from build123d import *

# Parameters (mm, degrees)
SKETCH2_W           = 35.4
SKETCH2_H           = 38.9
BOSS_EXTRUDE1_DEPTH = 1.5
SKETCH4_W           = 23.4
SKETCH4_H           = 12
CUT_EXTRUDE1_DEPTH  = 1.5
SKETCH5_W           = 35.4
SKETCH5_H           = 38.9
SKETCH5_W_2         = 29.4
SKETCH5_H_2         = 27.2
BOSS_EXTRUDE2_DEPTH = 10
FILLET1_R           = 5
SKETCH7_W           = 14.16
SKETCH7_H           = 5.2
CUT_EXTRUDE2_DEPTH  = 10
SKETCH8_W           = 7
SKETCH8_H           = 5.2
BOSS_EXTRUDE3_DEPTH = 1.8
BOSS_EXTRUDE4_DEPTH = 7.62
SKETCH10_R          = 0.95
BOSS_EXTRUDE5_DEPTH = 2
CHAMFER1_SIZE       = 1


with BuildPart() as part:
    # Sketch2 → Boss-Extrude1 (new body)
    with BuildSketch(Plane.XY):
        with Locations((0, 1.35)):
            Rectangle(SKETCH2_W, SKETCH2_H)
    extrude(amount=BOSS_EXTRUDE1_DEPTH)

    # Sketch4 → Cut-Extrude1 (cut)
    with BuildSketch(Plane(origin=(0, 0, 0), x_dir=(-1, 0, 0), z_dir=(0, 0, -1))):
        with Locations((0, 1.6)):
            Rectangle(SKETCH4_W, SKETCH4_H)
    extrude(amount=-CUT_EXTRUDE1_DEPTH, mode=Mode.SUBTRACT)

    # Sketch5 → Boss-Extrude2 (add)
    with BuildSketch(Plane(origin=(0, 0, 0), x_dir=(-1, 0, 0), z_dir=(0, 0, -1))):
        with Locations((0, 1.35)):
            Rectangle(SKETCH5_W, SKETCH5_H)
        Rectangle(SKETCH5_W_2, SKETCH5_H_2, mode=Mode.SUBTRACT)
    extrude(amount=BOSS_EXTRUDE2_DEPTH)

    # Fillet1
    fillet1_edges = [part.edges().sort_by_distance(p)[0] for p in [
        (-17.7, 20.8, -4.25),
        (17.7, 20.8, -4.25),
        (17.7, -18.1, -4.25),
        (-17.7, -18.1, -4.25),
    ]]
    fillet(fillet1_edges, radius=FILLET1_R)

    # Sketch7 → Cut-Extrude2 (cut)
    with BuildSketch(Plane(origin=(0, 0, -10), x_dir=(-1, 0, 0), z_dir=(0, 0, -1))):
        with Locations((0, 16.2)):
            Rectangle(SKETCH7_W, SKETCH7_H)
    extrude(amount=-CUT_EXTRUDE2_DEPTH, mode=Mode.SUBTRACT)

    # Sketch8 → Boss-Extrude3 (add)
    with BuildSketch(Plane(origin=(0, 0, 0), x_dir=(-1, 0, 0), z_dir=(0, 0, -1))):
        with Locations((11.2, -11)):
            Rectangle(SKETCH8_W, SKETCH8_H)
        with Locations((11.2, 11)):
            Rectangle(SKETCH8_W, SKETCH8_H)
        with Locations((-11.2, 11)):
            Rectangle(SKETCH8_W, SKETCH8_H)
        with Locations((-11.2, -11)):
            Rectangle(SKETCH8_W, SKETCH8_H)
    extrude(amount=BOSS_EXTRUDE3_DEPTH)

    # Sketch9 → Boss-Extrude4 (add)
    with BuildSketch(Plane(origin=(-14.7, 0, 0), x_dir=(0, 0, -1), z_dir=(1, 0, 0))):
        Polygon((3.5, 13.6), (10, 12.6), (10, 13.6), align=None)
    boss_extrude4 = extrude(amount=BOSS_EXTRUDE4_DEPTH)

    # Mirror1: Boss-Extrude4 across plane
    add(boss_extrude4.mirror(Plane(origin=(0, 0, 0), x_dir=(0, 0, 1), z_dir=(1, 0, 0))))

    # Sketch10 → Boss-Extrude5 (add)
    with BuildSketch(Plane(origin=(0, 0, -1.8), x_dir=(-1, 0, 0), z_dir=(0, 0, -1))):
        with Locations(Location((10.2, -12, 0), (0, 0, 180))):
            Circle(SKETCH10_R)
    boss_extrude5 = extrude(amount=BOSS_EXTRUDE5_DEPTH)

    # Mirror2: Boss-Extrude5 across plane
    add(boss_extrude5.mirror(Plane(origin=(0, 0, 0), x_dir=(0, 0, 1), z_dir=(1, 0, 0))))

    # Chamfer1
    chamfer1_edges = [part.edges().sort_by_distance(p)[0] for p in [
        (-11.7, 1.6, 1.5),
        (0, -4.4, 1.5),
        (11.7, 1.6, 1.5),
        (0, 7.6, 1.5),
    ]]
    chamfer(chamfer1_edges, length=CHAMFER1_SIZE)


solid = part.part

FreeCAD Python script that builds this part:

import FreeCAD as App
import Part
import Sketcher

V = App.Vector


def edges_at(feature, points):
    """Names of the edges that pass closest to the given points."""
    edges = feature.Shape.Edges
    near = lambda p: min(range(len(edges)), key=lambda i: edges[i].distToShape(Part.Vertex(*p))[0])
    return sorted({f"Edge{near(p) + 1}" for p in points})


def add_polygon(sketch, points):
    """Adds a closed chain of lines whose ends are joined by coincident constraints."""
    first, n = sketch.GeometryCount, len(points)
    for a, b in zip(points, points[1:] + points[:1]):
        sketch.addGeometry(Part.LineSegment(App.Vector(*a, 0), App.Vector(*b, 0)), False)
    for i in range(n):
        sketch.addConstraint(Sketcher.Constraint("Coincident", first + i, 2, first + (i + 1) % n, 1))

doc = App.newDocument("Part")
body = doc.addObject("PartDesign::Body", "Body")

sketch1 = doc.addObject("Sketcher::SketchObject", "Sketch")
body.addObject(sketch1)
sketch1.AttachmentSupport = (doc.XY_Plane, [""])
sketch1.MapMode = "FlatFace"
add_polygon(sketch1, [(-18, 21), (-18, -18), (18, -18), (18, 21)])
sketch1.addConstraint(Sketcher.Constraint("Vertical", 0))
sketch1.addConstraint(Sketcher.Constraint("Horizontal", 1))
sketch1.addConstraint(Sketcher.Constraint("Vertical", 2))
sketch1.addConstraint(Sketcher.Constraint("Horizontal", 3))
sketch1.addConstraint(Sketcher.Constraint("DistanceX", 1, 1, 1, 2, 35.4))
sketch1.addConstraint(Sketcher.Constraint("DistanceY", 0, 2, 0, 1, 38.9))
sketch1.addConstraint(Sketcher.Constraint("DistanceX", 0, 2, -1, 1, 17.7))
sketch1.addConstraint(Sketcher.Constraint("DistanceY", 0, 2, -1, 1, 18.1))
pad1 = doc.addObject("PartDesign::Pad", "Pad")
body.addObject(pad1)
pad1.Profile = sketch1
pad1.Length = 1.5

sketch2 = doc.addObject("Sketcher::SketchObject", "Sketch001")
body.addObject(sketch2)
sketch2.AttachmentSupport = (doc.XY_Plane, [""])
sketch2.MapMode = "FlatFace"
add_polygon(sketch2, [(12, 8), (12, -4), (-12, -4), (-12, 8)])
sketch2.addConstraint(Sketcher.Constraint("Vertical", 0))
sketch2.addConstraint(Sketcher.Constraint("Horizontal", 1))
sketch2.addConstraint(Sketcher.Constraint("Vertical", 2))
sketch2.addConstraint(Sketcher.Constraint("Horizontal", 3))
sketch2.addConstraint(Sketcher.Constraint("DistanceY", 0, 2, 0, 1, 12.0))
sketch2.addConstraint(Sketcher.Constraint("DistanceX", 1, 2, 1, 1, 23.4))
sketch2.addConstraint(Sketcher.Constraint("DistanceX", -1, 1, 0, 2, 11.7))
sketch2.addConstraint(Sketcher.Constraint("DistanceY", 0, 2, -1, 1, 4.4))
pocket1 = doc.addObject("PartDesign::Pocket", "Pocket")
body.addObject(pocket1)
pocket1.Profile = sketch2
pocket1.Length = 1.5
pocket1.Reversed = True

sketch3 = doc.addObject("Sketcher::SketchObject", "Sketch002")
body.addObject(sketch3)
sketch3.AttachmentSupport = (doc.XY_Plane, [""])
sketch3.MapMode = "FlatFace"
add_polygon(sketch3, [(18, 21), (18, -18), (-18, -18), (-18, 21)])
add_polygon(sketch3, [(-15, -14), (15, -14), (15, 14), (-15, 14)])
sketch3.addConstraint(Sketcher.Constraint("Vertical", 0))
sketch3.addConstraint(Sketcher.Constraint("Horizontal", 1))
sketch3.addConstraint(Sketcher.Constraint("Vertical", 2))
sketch3.addConstraint(Sketcher.Constraint("Horizontal", 3))
sketch3.addConstraint(Sketcher.Constraint("Horizontal", 4))
sketch3.addConstraint(Sketcher.Constraint("Vertical", 5))
sketch3.addConstraint(Sketcher.Constraint("Horizontal", 6))
sketch3.addConstraint(Sketcher.Constraint("Vertical", 7))
sketch3.addConstraint(Sketcher.Constraint("Symmetric", 4, 2, 6, 2, -1, 1))
sketch3.addConstraint(Sketcher.Constraint("DistanceX", 1, 2, 1, 1, 35.4))
sketch3.addConstraint(Sketcher.Constraint("DistanceX", 4, 1, 4, 2, 29.4))
sketch3.addConstraint(Sketcher.Constraint("DistanceY", 0, 2, 0, 1, 38.9))
sketch3.addConstraint(Sketcher.Constraint("DistanceY", 5, 1, 5, 2, 27.2))
sketch3.addConstraint(Sketcher.Constraint("DistanceX", 4, 2, 0, 2, 3.0))
sketch3.addConstraint(Sketcher.Constraint("DistanceY", 0, 2, -1, 1, 18.1))
pad2 = doc.addObject("PartDesign::Pad", "Pad001")
body.addObject(pad2)
pad2.Profile = sketch3
pad2.Length = 10
pad2.Reversed = True
doc.recompute()

fillet = doc.addObject("PartDesign::Fillet", "Fillet")
body.addObject(fillet)
fillet.Base = (pad2, edges_at(pad2, [
    (-17.7, 20.8, -4.25),
    (17.7, 20.8, -4.25),
    (17.7, -18.1, -4.25),
    (-17.7, -18.1, -4.25),
]))
fillet.Radius = 5

sketch4 = doc.addObject("Sketcher::SketchObject", "Sketch003")
body.addObject(sketch4)
sketch4.AttachmentSupport = (doc.XY_Plane, [""])
sketch4.MapMode = "FlatFace"
sketch4.AttachmentOffset = App.Placement(V(0, 0, -10), App.Rotation())
add_polygon(sketch4, [(7, 19), (7, 14), (-7, 14), (-7, 19)])
sketch4.addConstraint(Sketcher.Constraint("Vertical", 0))
sketch4.addConstraint(Sketcher.Constraint("Horizontal", 1))
sketch4.addConstraint(Sketcher.Constraint("Vertical", 2))
sketch4.addConstraint(Sketcher.Constraint("Horizontal", 3))
sketch4.addConstraint(Sketcher.Constraint("DistanceY", 0, 2, 0, 1, 5.2))
sketch4.addConstraint(Sketcher.Constraint("DistanceX", 1, 2, 1, 1, 14.16))
sketch4.addConstraint(Sketcher.Constraint("DistanceY", -1, 1, 0, 2, 13.6))
sketch4.addConstraint(Sketcher.Constraint("DistanceX", -1, 1, 0, 2, 7.08))
pocket2 = doc.addObject("PartDesign::Pocket", "Pocket001")
body.addObject(pocket2)
pocket2.Profile = sketch4
pocket2.Length = 10
pocket2.Reversed = True

sketch5 = doc.addObject("Sketcher::SketchObject", "Sketch004")
body.addObject(sketch5)
sketch5.AttachmentSupport = (doc.XY_Plane, [""])
sketch5.MapMode = "FlatFace"
add_polygon(sketch5, [(-8, -8), (-8, -14), (-15, -14), (-15, -8)])
add_polygon(sketch5, [(-8, 14), (-8, 8), (-15, 8), (-15, 14)])
add_polygon(sketch5, [(15, 14), (15, 8), (8, 8), (8, 14)])
add_polygon(sketch5, [(15, -8), (15, -14), (8, -14), (8, -8)])
sketch5.addConstraint(Sketcher.Constraint("Vertical", 0))
sketch5.addConstraint(Sketcher.Constraint("Horizontal", 1))
sketch5.addConstraint(Sketcher.Constraint("Vertical", 2))
sketch5.addConstraint(Sketcher.Constraint("Horizontal", 3))
sketch5.addConstraint(Sketcher.Constraint("Vertical", 4))
sketch5.addConstraint(Sketcher.Constraint("Horizontal", 5))
sketch5.addConstraint(Sketcher.Constraint("Vertical", 6))
sketch5.addConstraint(Sketcher.Constraint("Horizontal", 7))
sketch5.addConstraint(Sketcher.Constraint("Vertical", 8))
sketch5.addConstraint(Sketcher.Constraint("Horizontal", 9))
sketch5.addConstraint(Sketcher.Constraint("Vertical", 10))
sketch5.addConstraint(Sketcher.Constraint("Horizontal", 11))
sketch5.addConstraint(Sketcher.Constraint("Vertical", 12))
sketch5.addConstraint(Sketcher.Constraint("Horizontal", 13))
sketch5.addConstraint(Sketcher.Constraint("Vertical", 14))
sketch5.addConstraint(Sketcher.Constraint("Horizontal", 15))
sketch5.addConstraint(Sketcher.Constraint("Symmetric", 2, 2, 8, 2, -1, 1))
sketch5.addConstraint(Sketcher.Constraint("Symmetric", 0, 2, 10, 2, -1, 1))
sketch5.addConstraint(Sketcher.Constraint("Symmetric", 6, 2, 12, 2, -1, 1))
sketch5.addConstraint(Sketcher.Constraint("Symmetric", 4, 2, 14, 2, -1, 1))
sketch5.addConstraint(Sketcher.Constraint("Symmetric", 5, 2, 8, 2, -2))
sketch5.addConstraint(Sketcher.Constraint("Symmetric", 7, 2, 10, 2, -2))
sketch5.addConstraint(Sketcher.Constraint("DistanceX", 1, 2, 1, 1, 7.0))
sketch5.addConstraint(Sketcher.Constraint("DistanceY", 0, 2, 0, 1, 5.2))
sketch5.addConstraint(Sketcher.Constraint("DistanceY", 0, 2, 4, 2, 22.0))
sketch5.addConstraint(Sketcher.Constraint("DistanceX", 0, 2, -1, 1, 7.7))
pad3 = doc.addObject("PartDesign::Pad", "Pad002")
body.addObject(pad3)
pad3.Profile = sketch5
pad3.Length = 1.8
pad3.Reversed = True

sketch6 = doc.addObject("Sketcher::SketchObject", "Sketch005")
body.addObject(sketch6)
sketch6.AttachmentSupport = (doc.YZ_Plane, [""])
sketch6.MapMode = "FlatFace"
sketch6.AttachmentOffset = App.Placement(V(0, 0, -14.7), App.Rotation())
add_polygon(sketch6, [(13.6, -3.5), (12.6, -10), (13.6, -10)])
sketch6.addConstraint(Sketcher.Constraint("Horizontal", 1))
sketch6.addConstraint(Sketcher.Constraint("Vertical", 2))
sketch6.addConstraint(Sketcher.Constraint("DistanceX", 1, 1, 1, 2, 1.0))
sketch6.addConstraint(Sketcher.Constraint("DistanceY", 2, 1, 2, 2, 6.5))
sketch6.addConstraint(Sketcher.Constraint("DistanceY", 0, 2, -1, 1, 10.0))
sketch6.addConstraint(Sketcher.Constraint("DistanceX", -1, 1, 0, 2, 12.6))
pad4 = doc.addObject("PartDesign::Pad", "Pad003")
body.addObject(pad4)
pad4.Profile = sketch6
pad4.Length = 7.62
doc.recompute()

mirrored = doc.addObject("PartDesign::Mirrored", "Mirrored")
body.addObject(mirrored)
mirrored.Originals = [pad4]
mirrored.MirrorPlane = (doc.YZ_Plane, [""])
body.Tip = mirrored

sketch7 = doc.addObject("Sketcher::SketchObject", "Sketch006")
body.addObject(sketch7)
sketch7.AttachmentSupport = (doc.XY_Plane, [""])
sketch7.MapMode = "FlatFace"
sketch7.AttachmentOffset = App.Placement(V(0, 0, -1.8), App.Rotation())
sketch7.addGeometry(Part.Circle(V(-10.2, -12, 0), V(0, 0, 1), 0.9), False)
sketch7.addConstraint(Sketcher.Constraint("Diameter", 0, 1.9))
sketch7.addConstraint(Sketcher.Constraint("DistanceY", 0, 3, -1, 1, 12.0))
sketch7.addConstraint(Sketcher.Constraint("DistanceX", 0, 3, -1, 1, 10.2))
pad5 = doc.addObject("PartDesign::Pad", "Pad004")
body.addObject(pad5)
pad5.Profile = sketch7
pad5.Length = 2
pad5.Reversed = True
doc.recompute()

mirrored2 = doc.addObject("PartDesign::Mirrored", "Mirrored001")
body.addObject(mirrored2)
mirrored2.Originals = [pad5]
mirrored2.MirrorPlane = (doc.YZ_Plane, [""])
body.Tip = mirrored2
doc.recompute()

chamfer = doc.addObject("PartDesign::Chamfer", "Chamfer")
body.addObject(chamfer)
chamfer.Base = (mirrored2, edges_at(mirrored2, [
    (-11.7, 1.6, 1.5),
    (0, -4.4, 1.5),
    (11.7, 1.6, 1.5),
    (0, 7.6, 1.5),
]))
chamfer.Size = 1

doc.recompute()
